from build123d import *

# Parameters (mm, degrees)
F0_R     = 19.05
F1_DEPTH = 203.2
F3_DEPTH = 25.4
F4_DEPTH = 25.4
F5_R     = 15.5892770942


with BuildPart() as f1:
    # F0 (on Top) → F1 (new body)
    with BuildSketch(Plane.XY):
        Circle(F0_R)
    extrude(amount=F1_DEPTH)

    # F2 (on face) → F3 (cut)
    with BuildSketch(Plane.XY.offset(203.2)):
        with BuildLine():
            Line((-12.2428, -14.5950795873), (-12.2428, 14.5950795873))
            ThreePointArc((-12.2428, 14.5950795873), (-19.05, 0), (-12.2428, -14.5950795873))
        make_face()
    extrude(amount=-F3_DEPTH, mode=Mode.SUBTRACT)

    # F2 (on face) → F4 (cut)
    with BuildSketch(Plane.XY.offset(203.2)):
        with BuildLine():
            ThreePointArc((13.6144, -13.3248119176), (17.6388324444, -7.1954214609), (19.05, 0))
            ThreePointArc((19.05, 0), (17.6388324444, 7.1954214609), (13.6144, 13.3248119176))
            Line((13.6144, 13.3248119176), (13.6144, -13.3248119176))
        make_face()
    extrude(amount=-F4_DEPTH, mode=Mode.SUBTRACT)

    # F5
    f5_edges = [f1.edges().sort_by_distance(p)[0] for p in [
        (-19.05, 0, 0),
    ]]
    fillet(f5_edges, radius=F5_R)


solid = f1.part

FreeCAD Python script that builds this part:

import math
import FreeCAD as App
import Part
import Sketcher

V = App.Vector
Q = App.Units.Quantity


def edges_at(feature, points):
    """Names of the edges that pass closest to the given points."""
    edges = feature.Shape.Edges
    near = lambda p: min(range(len(edges)), key=lambda i: edges[i].distToShape(Part.Vertex(*p))[0])
    return sorted({f"Edge{near(p) + 1}" for p in points})

doc = App.newDocument("Part")
body = doc.addObject("PartDesign::Body", "Body")

sketch1 = body.newObject("Sketcher::SketchObject", "Sketch")
sketch1.AttachmentSupport = (doc.getObject("XY_Plane"), [""])
sketch1.MapMode = "FlatFace"
sketch1.addGeometry(Part.Circle(V(0, 0, 0), V(0, 0, 1), 19), False)
sketch1.addConstraint([
    Sketcher.Constraint("Coincident", 0, 3, -1, 1),
    Sketcher.Constraint("Diameter", 0, Q("1.5 in")),
])
pad1 = body.newObject("PartDesign::Pad", "Pad")
pad1.Profile = sketch1
pad1.Length = Q("8 in")

sketch2 = body.newObject("Sketcher::SketchObject", "Sketch001")
sketch2.AttachmentSupport = (doc.getObject("XY_Plane"), [""])
sketch2.MapMode = "FlatFace"
sketch2.AttachmentOffset = App.Placement(V(0, 0, 8 * 25.4), App.Rotation())
sketch2.addGeometry([
    Part.LineSegment(V(-12, -15, 0), V(-12, 15, 0)),
    Part.ArcOfCircle(Part.Circle(V(0, 0, 0), V(0, 0, 1), 19), math.radians(130), math.radians(230)),
], False)
sketch2.addConstraint([
    Sketcher.Constraint("Coincident", 0, 1, 1, 2),
    Sketcher.Constraint("Coincident", 1, 1, 0, 2),
    Sketcher.Constraint("Vertical", 0),
    Sketcher.Constraint("Coincident", 1, 3, -1, 1),
    Sketcher.Constraint("Radius", 1, Q("0.75 in")),
    Sketcher.Constraint("DistanceX", 0, 1, -1, 1, Q("0.482 in")),
])
pocket1 = body.newObject("PartDesign::Pocket", "Pocket")
pocket1.Profile = sketch2
pocket1.Length = Q("1 in")

sketch3 = body.newObject("Sketcher::SketchObject", "Sketch002")
sketch3.AttachmentSupport = (doc.getObject("XY_Plane"), [""])
sketch3.MapMode = "FlatFace"
sketch3.AttachmentOffset = App.Placement(V(0, 0, 8 * 25.4), App.Rotation())
sketch3.addGeometry([
    Part.ArcOfCircle(Part.Circle(V(0, 0, 0), V(0, 0, 1), 19), math.radians(-44), math.radians(0)),
    Part.ArcOfCircle(Part.Circle(V(0, 0, 0), V(0, 0, 1), 19), math.radians(0), math.radians(44)),
    Part.LineSegment(V(14, 13, 0), V(14, -13, 0)),
], False)
sketch3.addConstraint([
    Sketcher.Constraint("Tangent", 0, 2, 1, 1),
    Sketcher.Constraint("Coincident", 1, 2, 2, 1),
    Sketcher.Constraint("Coincident", 2, 2, 0, 1),
    Sketcher.Constraint("Vertical", 2),
    Sketcher.Constraint("Coincident", 0, 3, -1, 1),
    Sketcher.Constraint("Equal", 0, 1),
    Sketcher.Constraint("PointOnObject", 0, 2, -1),
    Sketcher.Constraint("Radius", 0, Q("0.75 in")),
    Sketcher.Constraint("DistanceX", -1, 1, 1, 2, Q("0.536 in")),
])
pocket2 = body.newObject("PartDesign::Pocket", "Pocket001")
pocket2.Profile = sketch3
pocket2.Length = Q("1 in")
doc.recompute()

fillet = body.newObject("PartDesign::Fillet", "Fillet")
fillet.Base = (pocket2, edges_at(pocket2, [(-19.05, 0, 0)]))
fillet.Radius = 15.589277

doc.recompute()
